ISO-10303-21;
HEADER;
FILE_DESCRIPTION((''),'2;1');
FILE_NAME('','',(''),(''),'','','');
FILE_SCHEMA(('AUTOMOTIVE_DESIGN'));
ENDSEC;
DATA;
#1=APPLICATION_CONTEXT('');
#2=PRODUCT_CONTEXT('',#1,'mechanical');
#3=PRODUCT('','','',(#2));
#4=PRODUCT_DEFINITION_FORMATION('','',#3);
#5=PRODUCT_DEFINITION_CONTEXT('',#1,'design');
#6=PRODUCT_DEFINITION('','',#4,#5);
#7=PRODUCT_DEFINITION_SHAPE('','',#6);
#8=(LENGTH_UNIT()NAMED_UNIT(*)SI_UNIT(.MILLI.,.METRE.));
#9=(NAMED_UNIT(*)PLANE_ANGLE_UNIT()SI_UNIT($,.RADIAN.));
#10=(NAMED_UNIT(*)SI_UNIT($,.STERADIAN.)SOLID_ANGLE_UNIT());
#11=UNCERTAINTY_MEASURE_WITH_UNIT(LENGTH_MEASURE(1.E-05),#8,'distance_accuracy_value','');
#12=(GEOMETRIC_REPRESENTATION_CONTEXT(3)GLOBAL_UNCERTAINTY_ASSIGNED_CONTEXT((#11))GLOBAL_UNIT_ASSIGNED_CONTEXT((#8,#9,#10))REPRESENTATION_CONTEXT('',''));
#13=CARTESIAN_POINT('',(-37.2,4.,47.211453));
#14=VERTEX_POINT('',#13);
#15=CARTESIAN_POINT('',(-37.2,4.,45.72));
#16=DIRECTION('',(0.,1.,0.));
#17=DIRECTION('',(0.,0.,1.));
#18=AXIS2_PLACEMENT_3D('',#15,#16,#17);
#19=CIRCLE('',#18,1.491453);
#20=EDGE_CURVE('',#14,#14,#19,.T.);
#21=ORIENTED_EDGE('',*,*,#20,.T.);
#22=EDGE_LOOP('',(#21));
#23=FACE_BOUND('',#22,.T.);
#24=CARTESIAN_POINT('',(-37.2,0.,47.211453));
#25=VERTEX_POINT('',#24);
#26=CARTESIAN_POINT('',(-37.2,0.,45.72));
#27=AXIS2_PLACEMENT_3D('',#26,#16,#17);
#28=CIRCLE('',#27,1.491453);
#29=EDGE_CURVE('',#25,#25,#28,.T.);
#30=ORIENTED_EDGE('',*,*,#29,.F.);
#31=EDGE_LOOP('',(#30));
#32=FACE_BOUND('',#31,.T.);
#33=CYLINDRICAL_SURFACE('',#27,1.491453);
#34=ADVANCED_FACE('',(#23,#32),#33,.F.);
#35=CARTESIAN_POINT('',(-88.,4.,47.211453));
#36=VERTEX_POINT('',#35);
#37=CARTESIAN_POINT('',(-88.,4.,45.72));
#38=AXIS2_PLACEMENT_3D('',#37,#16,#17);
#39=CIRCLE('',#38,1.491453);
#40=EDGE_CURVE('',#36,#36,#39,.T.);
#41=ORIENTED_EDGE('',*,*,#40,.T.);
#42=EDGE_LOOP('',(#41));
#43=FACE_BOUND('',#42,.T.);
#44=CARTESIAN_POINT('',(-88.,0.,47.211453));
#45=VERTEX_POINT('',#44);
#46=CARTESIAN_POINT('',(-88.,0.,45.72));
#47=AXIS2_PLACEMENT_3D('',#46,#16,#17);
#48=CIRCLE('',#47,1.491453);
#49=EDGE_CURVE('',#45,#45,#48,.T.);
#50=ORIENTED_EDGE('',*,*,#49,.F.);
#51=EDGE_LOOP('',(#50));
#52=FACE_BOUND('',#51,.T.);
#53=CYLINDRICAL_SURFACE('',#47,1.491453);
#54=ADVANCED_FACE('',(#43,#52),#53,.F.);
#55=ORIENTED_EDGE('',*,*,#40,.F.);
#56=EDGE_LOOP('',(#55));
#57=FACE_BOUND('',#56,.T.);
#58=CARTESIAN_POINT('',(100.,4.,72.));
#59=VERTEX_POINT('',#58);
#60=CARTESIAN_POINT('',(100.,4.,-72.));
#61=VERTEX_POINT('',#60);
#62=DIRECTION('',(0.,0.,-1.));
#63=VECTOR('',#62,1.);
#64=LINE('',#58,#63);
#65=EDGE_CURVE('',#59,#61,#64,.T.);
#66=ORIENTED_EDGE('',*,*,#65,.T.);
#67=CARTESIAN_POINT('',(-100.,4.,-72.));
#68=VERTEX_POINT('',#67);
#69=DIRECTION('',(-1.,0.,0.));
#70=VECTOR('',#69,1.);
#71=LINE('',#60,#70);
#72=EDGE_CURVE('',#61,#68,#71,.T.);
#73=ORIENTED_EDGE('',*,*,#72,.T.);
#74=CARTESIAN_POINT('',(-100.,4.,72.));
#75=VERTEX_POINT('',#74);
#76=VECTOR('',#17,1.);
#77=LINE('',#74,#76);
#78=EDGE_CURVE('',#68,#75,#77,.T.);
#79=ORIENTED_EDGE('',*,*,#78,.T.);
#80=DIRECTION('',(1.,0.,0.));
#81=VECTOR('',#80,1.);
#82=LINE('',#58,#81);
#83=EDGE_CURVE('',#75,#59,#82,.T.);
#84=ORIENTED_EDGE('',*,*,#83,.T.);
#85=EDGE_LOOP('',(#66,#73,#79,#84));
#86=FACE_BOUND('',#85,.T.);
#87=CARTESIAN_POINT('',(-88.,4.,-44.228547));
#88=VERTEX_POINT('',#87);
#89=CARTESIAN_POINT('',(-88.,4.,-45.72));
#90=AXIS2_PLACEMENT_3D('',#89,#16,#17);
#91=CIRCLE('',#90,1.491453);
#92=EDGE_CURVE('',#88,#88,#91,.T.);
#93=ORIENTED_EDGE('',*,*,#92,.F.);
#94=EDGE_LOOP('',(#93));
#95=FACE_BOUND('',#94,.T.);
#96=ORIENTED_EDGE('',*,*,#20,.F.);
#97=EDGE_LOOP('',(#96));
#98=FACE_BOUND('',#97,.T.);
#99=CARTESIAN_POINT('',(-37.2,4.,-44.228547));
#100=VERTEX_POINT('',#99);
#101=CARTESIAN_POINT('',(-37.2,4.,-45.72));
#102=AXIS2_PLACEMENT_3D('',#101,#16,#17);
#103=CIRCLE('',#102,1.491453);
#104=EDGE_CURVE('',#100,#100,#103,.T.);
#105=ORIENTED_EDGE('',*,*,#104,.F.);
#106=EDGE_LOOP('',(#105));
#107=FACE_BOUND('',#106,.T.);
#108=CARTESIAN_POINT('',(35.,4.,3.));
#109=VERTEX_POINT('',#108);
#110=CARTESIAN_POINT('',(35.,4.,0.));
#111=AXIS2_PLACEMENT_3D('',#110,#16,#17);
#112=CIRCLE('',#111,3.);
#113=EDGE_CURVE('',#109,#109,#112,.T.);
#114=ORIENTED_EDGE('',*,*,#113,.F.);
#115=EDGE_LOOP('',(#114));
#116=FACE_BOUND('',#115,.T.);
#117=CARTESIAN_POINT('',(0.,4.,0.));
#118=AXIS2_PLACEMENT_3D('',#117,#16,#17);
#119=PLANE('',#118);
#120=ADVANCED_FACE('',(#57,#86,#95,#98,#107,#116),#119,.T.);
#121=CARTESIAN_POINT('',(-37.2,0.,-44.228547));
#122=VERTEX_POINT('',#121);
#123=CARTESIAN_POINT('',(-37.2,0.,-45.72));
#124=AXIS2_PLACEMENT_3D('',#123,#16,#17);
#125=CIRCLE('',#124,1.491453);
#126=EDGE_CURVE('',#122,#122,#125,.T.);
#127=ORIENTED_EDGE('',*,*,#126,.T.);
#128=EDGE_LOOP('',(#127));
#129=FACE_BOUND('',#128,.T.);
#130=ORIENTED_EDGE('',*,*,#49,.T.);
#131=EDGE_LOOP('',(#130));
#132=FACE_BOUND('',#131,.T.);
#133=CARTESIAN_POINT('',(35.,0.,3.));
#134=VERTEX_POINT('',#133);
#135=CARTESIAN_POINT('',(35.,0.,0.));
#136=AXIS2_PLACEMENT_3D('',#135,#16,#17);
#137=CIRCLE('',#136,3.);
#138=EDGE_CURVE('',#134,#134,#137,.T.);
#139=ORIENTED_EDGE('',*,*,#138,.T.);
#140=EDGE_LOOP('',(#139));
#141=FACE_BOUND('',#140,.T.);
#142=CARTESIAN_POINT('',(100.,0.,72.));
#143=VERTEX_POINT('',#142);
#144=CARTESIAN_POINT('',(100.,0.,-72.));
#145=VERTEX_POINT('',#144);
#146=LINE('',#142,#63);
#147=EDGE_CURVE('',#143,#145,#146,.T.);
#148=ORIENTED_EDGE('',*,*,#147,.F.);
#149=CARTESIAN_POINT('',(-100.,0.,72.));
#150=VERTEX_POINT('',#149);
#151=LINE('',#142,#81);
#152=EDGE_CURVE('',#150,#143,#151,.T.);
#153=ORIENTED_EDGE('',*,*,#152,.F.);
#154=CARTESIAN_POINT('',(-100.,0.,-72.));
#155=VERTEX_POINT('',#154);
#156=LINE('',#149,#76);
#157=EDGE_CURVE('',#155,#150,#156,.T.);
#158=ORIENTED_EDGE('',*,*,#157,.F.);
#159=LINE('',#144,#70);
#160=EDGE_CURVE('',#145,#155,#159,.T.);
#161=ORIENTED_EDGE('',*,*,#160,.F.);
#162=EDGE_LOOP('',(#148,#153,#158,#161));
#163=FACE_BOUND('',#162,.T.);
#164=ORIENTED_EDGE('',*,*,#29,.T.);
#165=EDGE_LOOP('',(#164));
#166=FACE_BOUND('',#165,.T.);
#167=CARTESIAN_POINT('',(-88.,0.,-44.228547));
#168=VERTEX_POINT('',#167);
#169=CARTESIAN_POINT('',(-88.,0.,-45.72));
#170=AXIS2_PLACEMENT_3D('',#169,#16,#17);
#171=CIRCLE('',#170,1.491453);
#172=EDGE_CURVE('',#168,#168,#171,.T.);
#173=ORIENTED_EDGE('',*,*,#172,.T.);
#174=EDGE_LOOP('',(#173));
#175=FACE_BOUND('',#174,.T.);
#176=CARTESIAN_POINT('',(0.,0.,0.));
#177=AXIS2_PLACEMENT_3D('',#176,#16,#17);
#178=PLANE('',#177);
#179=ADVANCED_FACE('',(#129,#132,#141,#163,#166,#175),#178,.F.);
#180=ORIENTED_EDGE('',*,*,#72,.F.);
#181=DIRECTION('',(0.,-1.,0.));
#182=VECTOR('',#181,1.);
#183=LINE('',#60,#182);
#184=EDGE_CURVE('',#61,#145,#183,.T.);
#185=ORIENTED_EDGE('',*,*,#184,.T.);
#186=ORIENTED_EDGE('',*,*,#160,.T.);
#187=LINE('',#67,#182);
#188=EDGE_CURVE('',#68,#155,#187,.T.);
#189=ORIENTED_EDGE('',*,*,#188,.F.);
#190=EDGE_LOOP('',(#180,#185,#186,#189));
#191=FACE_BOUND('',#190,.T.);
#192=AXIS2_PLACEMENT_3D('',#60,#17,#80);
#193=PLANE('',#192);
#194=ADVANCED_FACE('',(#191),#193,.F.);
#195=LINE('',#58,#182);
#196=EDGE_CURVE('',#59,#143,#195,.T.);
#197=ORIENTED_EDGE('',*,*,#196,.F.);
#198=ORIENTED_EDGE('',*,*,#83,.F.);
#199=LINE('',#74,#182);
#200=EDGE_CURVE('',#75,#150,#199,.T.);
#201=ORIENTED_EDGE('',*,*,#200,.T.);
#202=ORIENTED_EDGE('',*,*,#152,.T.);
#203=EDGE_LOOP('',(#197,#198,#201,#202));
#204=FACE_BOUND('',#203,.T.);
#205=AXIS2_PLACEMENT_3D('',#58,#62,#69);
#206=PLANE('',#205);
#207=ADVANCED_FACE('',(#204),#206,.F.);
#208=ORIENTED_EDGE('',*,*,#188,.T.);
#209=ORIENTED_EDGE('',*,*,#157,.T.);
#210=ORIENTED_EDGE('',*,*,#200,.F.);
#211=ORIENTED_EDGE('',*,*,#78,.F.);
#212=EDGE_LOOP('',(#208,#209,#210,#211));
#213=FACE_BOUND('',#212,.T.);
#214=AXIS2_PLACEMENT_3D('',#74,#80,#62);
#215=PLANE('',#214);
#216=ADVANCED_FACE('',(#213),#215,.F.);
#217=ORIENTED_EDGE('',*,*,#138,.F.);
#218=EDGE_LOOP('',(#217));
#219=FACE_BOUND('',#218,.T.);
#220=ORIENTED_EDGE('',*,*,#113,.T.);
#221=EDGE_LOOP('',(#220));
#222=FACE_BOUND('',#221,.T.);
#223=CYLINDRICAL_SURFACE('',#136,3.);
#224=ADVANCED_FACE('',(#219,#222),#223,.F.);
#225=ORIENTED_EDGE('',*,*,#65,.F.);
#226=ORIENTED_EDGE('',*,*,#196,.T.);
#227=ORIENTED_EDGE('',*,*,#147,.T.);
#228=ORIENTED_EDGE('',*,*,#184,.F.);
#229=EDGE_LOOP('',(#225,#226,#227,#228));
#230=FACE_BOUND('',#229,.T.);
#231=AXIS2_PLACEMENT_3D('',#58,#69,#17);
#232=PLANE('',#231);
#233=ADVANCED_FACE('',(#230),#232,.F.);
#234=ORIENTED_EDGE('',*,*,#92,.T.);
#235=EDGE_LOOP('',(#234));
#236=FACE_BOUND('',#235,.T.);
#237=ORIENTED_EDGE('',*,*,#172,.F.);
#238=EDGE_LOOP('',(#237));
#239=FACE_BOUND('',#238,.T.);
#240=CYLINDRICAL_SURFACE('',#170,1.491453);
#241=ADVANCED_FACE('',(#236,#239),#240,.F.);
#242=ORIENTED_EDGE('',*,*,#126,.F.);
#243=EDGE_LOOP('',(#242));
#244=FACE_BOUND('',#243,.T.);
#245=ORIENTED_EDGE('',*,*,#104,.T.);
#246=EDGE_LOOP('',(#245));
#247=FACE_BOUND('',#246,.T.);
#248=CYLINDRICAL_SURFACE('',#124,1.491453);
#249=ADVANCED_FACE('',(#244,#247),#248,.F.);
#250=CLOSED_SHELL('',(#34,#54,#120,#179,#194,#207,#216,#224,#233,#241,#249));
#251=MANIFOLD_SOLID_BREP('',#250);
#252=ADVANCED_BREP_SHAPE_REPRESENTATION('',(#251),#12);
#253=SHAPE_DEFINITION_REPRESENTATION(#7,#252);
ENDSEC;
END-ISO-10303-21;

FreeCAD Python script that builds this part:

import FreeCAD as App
import Part
import Sketcher
from FreeCAD import Vector
Q = App.Units.Quantity


def add_polygon(sketch, points):
    """Adds a closed chain of lines whose ends are joined by coincident constraints."""
    first, n = sketch.GeometryCount, len(points)
    for a, b in zip(points, points[1:] + points[:1]):
        sketch.addGeometry(Part.LineSegment(App.Vector(*a, 0), App.Vector(*b, 0)), False)
    for i in range(n):
        sketch.addConstraint(Sketcher.Constraint("Coincident", first + i, 2, first + (i + 1) % n, 1))

doc = App.newDocument("Part")
body = doc.addObject("PartDesign::Body", "Body")

sketch1 = body.newObject("Sketcher::SketchObject", "Sketch")
sketch1.AttachmentSupport = (doc.getObject("XZ_Plane"), [""])
sketch1.MapMode = "FlatFace"
add_polygon(sketch1, [(-100, -72), (-100, 72), (100, 72), (100, -72)])
sketch1.addConstraint([
    Sketcher.Constraint("Vertical", 0),
    Sketcher.Constraint("Horizontal", 1),
    Sketcher.Constraint("Vertical", 2),
    Sketcher.Constraint("Horizontal", 3),
    Sketcher.Constraint("Symmetric", 0, 2, 2, 2, -1, 1),
    Sketcher.Constraint("DistanceX", 1, 1, 1, 2, Q("200 mm")),
    Sketcher.Constraint("DistanceY", 0, 1, 0, 2, Q("144 mm")),
])
pad1 = body.newObject("PartDesign::Pad", "Pad")
pad1.Profile = sketch1
pad1.Length = 4
pad1.Reversed = True

sketch2 = body.newObject("Sketcher::SketchObject", "Sketch001")
sketch2.AttachmentSupport = (doc.getObject("XZ_Plane"), [""])
sketch2.MapMode = "FlatFace"
sketch2.AttachmentOffset = App.Placement(Vector(0, 0, -4), App.Rotation())
sketch2.addGeometry([
    Part.Circle(Vector(35, 0, 0), Vector(0, 0, 1), 3),
    Part.Circle(Vector(-88, -45.72, 0), Vector(0, 0, 1), 1.491453),
    Part.Circle(Vector(-37.2, -45.72, 0), Vector(0, 0, 1), 1.491453),
    Part.Circle(Vector(-37.2, 45.72, 0), Vector(0, 0, 1), 1.491453),
    Part.Circle(Vector(-88, 45.72, 0), Vector(0, 0, 1), 1.491453),
], False)
sketch2.addConstraint([
    Sketcher.Constraint("Equal", 1, 2),
    Sketcher.Constraint("Equal", 2, 3),
    Sketcher.Constraint("Equal", 3, 4),
    Sketcher.Constraint("Symmetric", 2, 3, 3, 3, -1),
    Sketcher.Constraint("Symmetric", 1, 3, 4, 3, -1),
    Sketcher.Constraint("PointOnObject", 0, 3, -1),
    Sketcher.Constraint("Horizontal", 1, 3, 2, 3),
    Sketcher.Constraint("Diameter", 0, Q("6 mm")),
    Sketcher.Constraint("DistanceX", -1, 1, 0, 3, Q("35 mm")),
    Sketcher.Constraint("DistanceX", 1, 3, -1, 1, Q("88 mm")),
    Sketcher.Constraint("DistanceX", 2, 3, -1, 1, Q("37.2 mm")),
    Sketcher.Constraint("DistanceY", 1, 3, -1, 1, Q("45.72 mm")),
    Sketcher.Constraint("Diameter", 1, Q("2.982906 mm")),
])
pocket1 = body.newObject("PartDesign::Pocket", "Pocket")
pocket1.Profile = sketch2
pocket1.Type = "ThroughAll"
pocket1.Reversed = True

doc.recompute()
